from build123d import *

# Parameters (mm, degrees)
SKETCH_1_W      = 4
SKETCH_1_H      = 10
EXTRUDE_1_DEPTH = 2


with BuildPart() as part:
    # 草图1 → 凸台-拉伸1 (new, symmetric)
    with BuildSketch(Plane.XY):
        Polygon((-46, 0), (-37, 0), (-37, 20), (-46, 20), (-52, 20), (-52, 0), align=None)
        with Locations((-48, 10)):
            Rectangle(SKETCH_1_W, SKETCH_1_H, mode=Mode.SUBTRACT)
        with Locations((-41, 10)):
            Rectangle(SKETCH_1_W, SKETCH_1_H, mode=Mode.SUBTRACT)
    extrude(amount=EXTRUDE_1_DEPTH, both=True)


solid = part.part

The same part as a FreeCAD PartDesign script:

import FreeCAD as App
import Part
import Sketcher
Q = App.Units.Quantity

doc = App.newDocument("Part")
body = doc.addObject("PartDesign::Body", "Body")

sketch1 = body.newObject("Sketcher::SketchObject", "Sketch")
sketch1.AttachmentSupport = (doc.getObject("XY_Plane"), [""])
sketch1.MapMode = "FlatFace"
sketch1.addGeometry([
    Part.LineSegment(App.Vector(-37, 0, 0), App.Vector(-37, 20, 0)),
    Part.LineSegment(App.Vector(-37, 20, 0), App.Vector(-52, 20, 0)),
    Part.LineSegment(App.Vector(-52, 20, 0), App.Vector(-52, 0, 0)),
    Part.LineSegment(App.Vector(-52, 0, 0), App.Vector(-37, 0, 0)),
    Part.LineSegment(App.Vector(-46, 5, 0), App.Vector(-50, 5, 0)),
    Part.LineSegment(App.Vector(-50, 5, 0), App.Vector(-50, 15, 0)),
    Part.LineSegment(App.Vector(-50, 15, 0), App.Vector(-46, 15, 0)),
    Part.LineSegment(App.Vector(-46, 15, 0), App.Vector(-46, 5, 0)),
    Part.LineSegment(App.Vector(-39, 5, 0), App.Vector(-43, 5, 0)),
    Part.LineSegment(App.Vector(-43, 5, 0), App.Vector(-43, 15, 0)),
    Part.LineSegment(App.Vector(-43, 15, 0), App.Vector(-39, 15, 0)),
    Part.LineSegment(App.Vector(-39, 15, 0), App.Vector(-39, 5, 0)),
], False)
sketch1.addConstraint([
    Sketcher.Constraint("Coincident", 0, 2, 1, 1),
    Sketcher.Constraint("Coincident", 1, 2, 2, 1),
    Sketcher.Constraint("Coincident", 2, 2, 3, 1),
    Sketcher.Constraint("Coincident", 3, 2, 0, 1),
    Sketcher.Constraint("Coincident", 4, 2, 5, 1),
    Sketcher.Constraint("Coincident", 5, 2, 6, 1),
    Sketcher.Constraint("Coincident", 6, 2, 7, 1),
    Sketcher.Constraint("Coincident", 7, 2, 4, 1),
    Sketcher.Constraint("Coincident", 8, 2, 9, 1),
    Sketcher.Constraint("Coincident", 9, 2, 10, 1),
    Sketcher.Constraint("Coincident", 10, 2, 11, 1),
    Sketcher.Constraint("Coincident", 11, 2, 8, 1),
    Sketcher.Constraint("Vertical", 0),
    Sketcher.Constraint("Horizontal", 1),
    Sketcher.Constraint("Vertical", 2),
    Sketcher.Constraint("Horizontal", 3),
    Sketcher.Constraint("Horizontal", 4),
    Sketcher.Constraint("Vertical", 5),
    Sketcher.Constraint("Horizontal", 6),
    Sketcher.Constraint("Vertical", 7),
    Sketcher.Constraint("Horizontal", 8),
    Sketcher.Constraint("Vertical", 9),
    Sketcher.Constraint("Horizontal", 10),
    Sketcher.Constraint("Vertical", 11),
    Sketcher.Constraint("PointOnObject", 2, 2, -1),
    Sketcher.Constraint("Horizontal", 7, 2, 8, 2),
    Sketcher.Constraint("Horizontal", 6, 2, 9, 2),
    Sketcher.Constraint("Equal", 6, 8),
    Sketcher.Constraint("DistanceX", 1, 2, 1, 1, Q("15 mm")),
    Sketcher.Constraint("DistanceX", 4, 2, 4, 1, Q("4 mm")),
    Sketcher.Constraint("DistanceY", 0, 1, 0, 2, Q("20 mm")),
    Sketcher.Constraint("DistanceY", 5, 1, 5, 2, Q("10 mm")),
    Sketcher.Constraint("DistanceX", 0, 2, -1, 1, Q("37 mm")),
    Sketcher.Constraint("DistanceX", 4, 2, -1, 1, Q("50 mm")),
    Sketcher.Constraint("DistanceY", -1, 1, 4, 2, Q("5 mm")),
    Sketcher.Constraint("DistanceX", 8, 2, -1, 1, Q("43 mm")),
])
pad1 = body.newObject("PartDesign::Pad", "Pad")
pad1.Profile = sketch1
pad1.Length = 4
pad1.Midplane = True

doc.recompute()
